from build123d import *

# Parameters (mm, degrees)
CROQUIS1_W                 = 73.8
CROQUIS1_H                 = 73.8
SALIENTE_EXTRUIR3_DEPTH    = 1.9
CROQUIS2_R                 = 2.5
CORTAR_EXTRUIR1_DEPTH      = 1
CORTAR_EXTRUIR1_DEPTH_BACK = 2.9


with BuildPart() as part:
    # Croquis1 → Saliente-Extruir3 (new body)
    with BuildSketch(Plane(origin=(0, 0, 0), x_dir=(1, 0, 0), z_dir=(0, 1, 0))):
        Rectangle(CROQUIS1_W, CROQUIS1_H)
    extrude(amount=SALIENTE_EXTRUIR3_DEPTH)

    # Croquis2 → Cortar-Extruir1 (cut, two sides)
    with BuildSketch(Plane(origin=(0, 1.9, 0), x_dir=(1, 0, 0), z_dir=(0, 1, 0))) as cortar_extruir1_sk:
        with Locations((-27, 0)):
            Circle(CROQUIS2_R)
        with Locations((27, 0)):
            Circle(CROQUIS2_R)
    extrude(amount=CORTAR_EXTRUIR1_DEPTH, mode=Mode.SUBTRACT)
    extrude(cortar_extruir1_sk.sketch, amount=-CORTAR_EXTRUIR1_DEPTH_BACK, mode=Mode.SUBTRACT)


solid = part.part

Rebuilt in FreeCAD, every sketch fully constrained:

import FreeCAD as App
import Part
import Sketcher

V = App.Vector


def add_polygon(sketch, points):
    """Adds a closed chain of lines whose ends are joined by coincident constraints."""
    first, n = sketch.GeometryCount, len(points)
    for a, b in zip(points, points[1:] + points[:1]):
        sketch.addGeometry(Part.LineSegment(App.Vector(*a, 0), App.Vector(*b, 0)), False)
    for i in range(n):
        sketch.addConstraint(Sketcher.Constraint("Coincident", first + i, 2, first + (i + 1) % n, 1))

doc = App.newDocument("Part")
params = doc.addObject("Spreadsheet::Sheet", "Params")
for row, (alias, value) in enumerate([
    ("sketch1_width", "73.8 mm"),
    ("pad1_length", "1.9 mm"),
    ("sketch2_diameter", "5 mm"),
], start=1):
    params.set(f"A{row}", alias)
    params.set(f"B{row}", "=" + value)
    params.setAlias(f"B{row}", alias)

body = doc.addObject("PartDesign::Body", "Body")

# Sketch on XZ plane
sketch1 = body.newObject("Sketcher::SketchObject", "Sketch")
sketch1.AttachmentSupport = (doc.getObject("XZ_Plane"), [""])
sketch1.MapMode = "FlatFace"
add_polygon(sketch1, [(-37, -37), (-37, 37), (37, 37), (37, -37)])  # lines 0-3
sketch1.addConstraint(Sketcher.Constraint("Vertical", 0))
sketch1.addConstraint(Sketcher.Constraint("Horizontal", 1))
sketch1.addConstraint(Sketcher.Constraint("Vertical", 2))
sketch1.addConstraint(Sketcher.Constraint("Horizontal", 3))
sketch1.addConstraint(Sketcher.Constraint("Symmetric", 0, 2, 2, 2, -1, 1))
sketch1.addConstraint(Sketcher.Constraint("Equal", 3, 0))
sketch1.addConstraint(Sketcher.Constraint("DistanceX", 1, 1, 1, 2, 73.8))
sketch1.setExpression("Constraints[10]", "Params.sketch1_width")
pad1 = body.newObject("PartDesign::Pad", "Pad")
pad1.Profile = sketch1
pad1.setExpression("Length", "Params.pad1_length")
pad1.Reversed = True

# Sketch on XZ plane
sketch2 = body.newObject("Sketcher::SketchObject", "Sketch001")
sketch2.AttachmentSupport = (doc.getObject("XZ_Plane"), [""])
sketch2.MapMode = "FlatFace"
sketch2.AttachmentOffset = App.Placement(V(0, 0, -1.9), App.Rotation())
sketch2.addGeometry(Part.Circle(V(-27, 0, 0), V(0, 0, 1), 2.5), False)
sketch2.addGeometry(Part.Circle(V(27, 0, 0), V(0, 0, 1), 2.5), False)
sketch2.addConstraint(Sketcher.Constraint("Equal", 0, 1))
sketch2.addConstraint(Sketcher.Constraint("Symmetric", 0, 3, 1, 3, -1, 1))
sketch2.addConstraint(Sketcher.Constraint("PointOnObject", 0, 3, -1))
sketch2.addConstraint(Sketcher.Constraint("Diameter", 0, 5.0))
sketch2.addConstraint(Sketcher.Constraint("DistanceX", 0, 3, -1, 1, 27.0))
sketch2.setExpression("Constraints[3]", "Params.sketch2_diameter")
pocket1 = body.newObject("PartDesign::Pocket", "Pocket")
pocket1.Profile = sketch2
pocket1.Type = "ThroughAll"
pocket1.Midplane = True

doc.recompute()
